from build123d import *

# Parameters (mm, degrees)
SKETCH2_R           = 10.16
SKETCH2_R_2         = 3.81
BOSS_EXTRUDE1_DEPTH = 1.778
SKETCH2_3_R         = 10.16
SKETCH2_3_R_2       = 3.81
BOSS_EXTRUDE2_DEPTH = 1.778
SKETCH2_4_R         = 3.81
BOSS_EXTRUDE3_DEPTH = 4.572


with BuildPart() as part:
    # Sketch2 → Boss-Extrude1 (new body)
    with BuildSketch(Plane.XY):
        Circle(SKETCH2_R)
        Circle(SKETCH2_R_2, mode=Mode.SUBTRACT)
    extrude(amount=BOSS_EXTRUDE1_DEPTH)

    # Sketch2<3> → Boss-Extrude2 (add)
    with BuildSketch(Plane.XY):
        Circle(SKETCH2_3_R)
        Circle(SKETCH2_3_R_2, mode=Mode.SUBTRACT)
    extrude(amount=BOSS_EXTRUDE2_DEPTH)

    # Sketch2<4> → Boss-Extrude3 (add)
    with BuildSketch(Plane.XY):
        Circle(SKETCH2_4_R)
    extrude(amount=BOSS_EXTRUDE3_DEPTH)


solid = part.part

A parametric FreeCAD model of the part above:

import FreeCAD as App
import Part
import Sketcher

V = App.Vector
Q = App.Units.Quantity

doc = App.newDocument("Part")
body = doc.addObject("PartDesign::Body", "Body")

# Sketch on XY plane
sketch1 = doc.addObject("Sketcher::SketchObject", "Sketch")
body.addObject(sketch1)
sketch1.AttachmentSupport = (doc.XY_Plane, [""])
sketch1.MapMode = "FlatFace"
sketch1.addGeometry([
    Part.Circle(V(0, 0, 0), V(0, 0, 1), 10.2),
    Part.Circle(V(0, 0, 0), V(0, 0, 1), 3.8),
], False)
sketch1.addConstraint([
    Sketcher.Constraint("Coincident", 0, 3, -1, 1),
    Sketcher.Constraint("Coincident", 1, 3, -1, 1),
    Sketcher.Constraint("Diameter", 0, Q("0.8 in")),
    Sketcher.Constraint("Diameter", 1, Q("0.3 in")),
])
pad1 = doc.addObject("PartDesign::Pad", "Pad")
body.addObject(pad1)
pad1.Profile = sketch1
pad1.Length = Q("0.07 in")

# Sketch on XY plane
sketch2 = doc.addObject("Sketcher::SketchObject", "Sketch001")
body.addObject(sketch2)
sketch2.AttachmentSupport = (doc.XY_Plane, [""])
sketch2.MapMode = "FlatFace"
sketch2.addGeometry([
    Part.Circle(V(0, 0, 0), V(0, 0, 1), 10.2),
    Part.Circle(V(0, 0, 0), V(0, 0, 1), 3.8),
], False)
sketch2.addConstraint([
    Sketcher.Constraint("Coincident", 0, 3, -1, 1),
    Sketcher.Constraint("Coincident", 1, 3, -1, 1),
    Sketcher.Constraint("Diameter", 0, Q("0.8 in")),
    Sketcher.Constraint("Diameter", 1, Q("0.3 in")),
])
pad2 = doc.addObject("PartDesign::Pad", "Pad001")
body.addObject(pad2)
pad2.Profile = sketch2
pad2.Length = Q("0.07 in")

# Sketch on XY plane
sketch3 = doc.addObject("Sketcher::SketchObject", "Sketch002")
body.addObject(sketch3)
sketch3.AttachmentSupport = (doc.XY_Plane, [""])
sketch3.MapMode = "FlatFace"
sketch3.addGeometry(Part.Circle(V(0, 0, 0), V(0, 0, 1), 3.8), False)
sketch3.addConstraint([
    Sketcher.Constraint("Coincident", 0, 3, -1, 1),
    Sketcher.Constraint("Diameter", 0, Q("0.3 in")),
])
pad3 = doc.addObject("PartDesign::Pad", "Pad002")
body.addObject(pad3)
pad3.Profile = sketch3
pad3.Length = Q("0.18 in")

doc.recompute()
